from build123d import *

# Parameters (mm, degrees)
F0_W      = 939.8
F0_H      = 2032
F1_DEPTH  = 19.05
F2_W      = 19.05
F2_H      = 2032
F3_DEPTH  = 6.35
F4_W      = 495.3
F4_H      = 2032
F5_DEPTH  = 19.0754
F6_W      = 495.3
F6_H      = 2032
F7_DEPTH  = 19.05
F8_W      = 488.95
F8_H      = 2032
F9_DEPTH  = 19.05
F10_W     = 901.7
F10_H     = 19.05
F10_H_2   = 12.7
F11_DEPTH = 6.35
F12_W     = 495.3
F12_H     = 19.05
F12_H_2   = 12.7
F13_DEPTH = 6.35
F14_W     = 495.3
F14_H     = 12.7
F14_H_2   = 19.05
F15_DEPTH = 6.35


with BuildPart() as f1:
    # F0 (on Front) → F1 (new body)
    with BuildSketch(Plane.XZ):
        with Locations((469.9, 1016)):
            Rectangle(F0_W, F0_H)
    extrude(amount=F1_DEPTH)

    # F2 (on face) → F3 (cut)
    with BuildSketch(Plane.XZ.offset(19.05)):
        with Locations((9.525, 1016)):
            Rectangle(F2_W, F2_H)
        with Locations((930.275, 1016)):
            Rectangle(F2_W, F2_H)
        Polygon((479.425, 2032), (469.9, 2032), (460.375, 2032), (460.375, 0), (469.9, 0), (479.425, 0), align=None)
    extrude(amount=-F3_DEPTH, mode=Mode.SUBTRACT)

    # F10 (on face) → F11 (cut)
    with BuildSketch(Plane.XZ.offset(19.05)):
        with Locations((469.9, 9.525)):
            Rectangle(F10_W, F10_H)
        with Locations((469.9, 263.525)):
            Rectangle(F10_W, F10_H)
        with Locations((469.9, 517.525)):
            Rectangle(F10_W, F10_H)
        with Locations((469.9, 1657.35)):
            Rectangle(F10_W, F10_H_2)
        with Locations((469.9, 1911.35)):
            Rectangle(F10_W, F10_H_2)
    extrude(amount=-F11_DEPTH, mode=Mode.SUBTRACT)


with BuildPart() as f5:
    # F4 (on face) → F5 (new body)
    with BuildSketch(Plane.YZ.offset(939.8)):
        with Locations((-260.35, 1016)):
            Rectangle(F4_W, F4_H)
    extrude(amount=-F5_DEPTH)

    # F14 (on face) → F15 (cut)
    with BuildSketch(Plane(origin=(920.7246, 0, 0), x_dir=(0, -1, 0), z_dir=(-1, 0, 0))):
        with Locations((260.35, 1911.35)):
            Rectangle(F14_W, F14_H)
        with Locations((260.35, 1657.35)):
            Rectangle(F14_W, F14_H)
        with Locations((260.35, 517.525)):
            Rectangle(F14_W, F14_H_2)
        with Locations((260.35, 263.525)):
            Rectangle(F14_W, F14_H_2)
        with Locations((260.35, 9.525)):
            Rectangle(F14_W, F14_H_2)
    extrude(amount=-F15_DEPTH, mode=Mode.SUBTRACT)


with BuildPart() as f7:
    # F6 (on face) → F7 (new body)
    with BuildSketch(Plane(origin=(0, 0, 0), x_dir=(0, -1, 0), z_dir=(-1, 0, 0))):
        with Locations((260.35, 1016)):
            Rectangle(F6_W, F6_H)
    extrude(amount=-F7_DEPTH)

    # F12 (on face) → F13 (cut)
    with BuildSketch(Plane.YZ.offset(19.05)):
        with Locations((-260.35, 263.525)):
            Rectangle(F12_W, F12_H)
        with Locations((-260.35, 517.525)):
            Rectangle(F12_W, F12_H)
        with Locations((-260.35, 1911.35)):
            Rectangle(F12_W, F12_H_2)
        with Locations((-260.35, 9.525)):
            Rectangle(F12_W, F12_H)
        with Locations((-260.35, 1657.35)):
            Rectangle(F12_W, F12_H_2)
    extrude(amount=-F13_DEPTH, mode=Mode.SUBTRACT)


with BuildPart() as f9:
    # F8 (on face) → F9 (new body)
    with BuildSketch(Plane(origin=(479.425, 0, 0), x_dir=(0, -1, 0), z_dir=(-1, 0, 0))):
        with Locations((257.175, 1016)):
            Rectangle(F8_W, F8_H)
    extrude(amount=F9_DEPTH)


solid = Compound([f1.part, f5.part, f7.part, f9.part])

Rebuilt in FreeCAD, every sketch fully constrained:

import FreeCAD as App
import Part
import Sketcher
Q = App.Units.Quantity

doc = App.newDocument("Part")
body = doc.addObject("PartDesign::Body", "Body")

sketch1 = doc.addObject("Sketcher::SketchObject", "Sketch")
body.addObject(sketch1)
sketch1.AttachmentSupport = (doc.XZ_Plane, [""])
sketch1.MapMode = "FlatFace"
sketch1.addGeometry([
    Part.LineSegment(App.Vector(0, 2032, 0), App.Vector(0, 0, 0)),
    Part.LineSegment(App.Vector(0, 0, 0), App.Vector(940, 0, 0)),
    Part.LineSegment(App.Vector(940, 0, 0), App.Vector(940, 2032, 0)),
    Part.LineSegment(App.Vector(940, 2032, 0), App.Vector(0, 2032, 0)),
], False)
sketch1.addConstraint([
    Sketcher.Constraint("Coincident", 0, 2, 1, 1),
    Sketcher.Constraint("Coincident", 1, 2, 2, 1),
    Sketcher.Constraint("Coincident", 2, 2, 3, 1),
    Sketcher.Constraint("Coincident", 3, 2, 0, 1),
    Sketcher.Constraint("Vertical", 0),
    Sketcher.Constraint("Horizontal", 1),
    Sketcher.Constraint("Vertical", 2),
    Sketcher.Constraint("Horizontal", 3),
    Sketcher.Constraint("Coincident", 0, 2, -1, 1),
    Sketcher.Constraint("DistanceX", 1, 1, 1, 2, Q("37 in")),
    Sketcher.Constraint("DistanceY", 0, 2, 0, 1, Q("80 in")),
])
pad1 = doc.addObject("PartDesign::Pad", "Pad")
body.addObject(pad1)
pad1.Profile = sketch1
pad1.Length = Q("0.75 in")

sketch2 = doc.addObject("Sketcher::SketchObject", "Sketch001")
body.addObject(sketch2)
sketch2.AttachmentSupport = (doc.XZ_Plane, [""])
sketch2.MapMode = "FlatFace"
sketch2.AttachmentOffset = App.Placement(App.Vector(0, 0, 0.75 * 25.4), App.Rotation())
sketch2.addGeometry([
    Part.LineSegment(App.Vector(0, 2032, 0), App.Vector(0, 0, 0)),
    Part.LineSegment(App.Vector(0, 0, 0), App.Vector(19, 0, 0)),
    Part.LineSegment(App.Vector(19, 0, 0), App.Vector(19, 2032, 0)),
    Part.LineSegment(App.Vector(19, 2032, 0), App.Vector(0, 2032, 0)),
    Part.LineSegment(App.Vector(921, 2032, 0), App.Vector(921, 0, 0)),
    Part.LineSegment(App.Vector(921, 0, 0), App.Vector(940, 0, 0)),
    Part.LineSegment(App.Vector(940, 0, 0), App.Vector(940, 2032, 0)),
    Part.LineSegment(App.Vector(940, 2032, 0), App.Vector(921, 2032, 0)),
    Part.LineSegment(App.Vector(479, 2032, 0), App.Vector(460, 2032, 0)),
    Part.LineSegment(App.Vector(460, 2032, 0), App.Vector(460, 0, 0)),
    Part.LineSegment(App.Vector(460, 0, 0), App.Vector(479, 0, 0)),
    Part.LineSegment(App.Vector(479, 0, 0), App.Vector(479, 2032, 0)),
], False)
sketch2.addConstraint([
    Sketcher.Constraint("Coincident", 0, 2, 1, 1),
    Sketcher.Constraint("Coincident", 1, 2, 2, 1),
    Sketcher.Constraint("Coincident", 2, 2, 3, 1),
    Sketcher.Constraint("Coincident", 3, 2, 0, 1),
    Sketcher.Constraint("Coincident", 4, 2, 5, 1),
    Sketcher.Constraint("Coincident", 5, 2, 6, 1),
    Sketcher.Constraint("Coincident", 6, 2, 7, 1),
    Sketcher.Constraint("Coincident", 7, 2, 4, 1),
    Sketcher.Constraint("Coincident", 8, 2, 9, 1),
    Sketcher.Constraint("Coincident", 9, 2, 10, 1),
    Sketcher.Constraint("Coincident", 10, 2, 11, 1),
    Sketcher.Constraint("Coincident", 11, 2, 8, 1),
    Sketcher.Constraint("Vertical", 0),
    Sketcher.Constraint("Horizontal", 1),
    Sketcher.Constraint("Vertical", 2),
    Sketcher.Constraint("Horizontal", 3),
    Sketcher.Constraint("Vertical", 4),
    Sketcher.Constraint("Horizontal", 5),
    Sketcher.Constraint("Vertical", 6),
    Sketcher.Constraint("Horizontal", 7),
    Sketcher.Constraint("Horizontal", 8),
    Sketcher.Constraint("Vertical", 9),
    Sketcher.Constraint("Horizontal", 10),
    Sketcher.Constraint("Vertical", 11),
    Sketcher.Constraint("Coincident", 0, 2, -1, 1),
    Sketcher.Constraint("PointOnObject", 4, 2, -1),
    Sketcher.Constraint("PointOnObject", 9, 2, -1),
    Sketcher.Constraint("Horizontal", 3, 2, 6, 2),
    Sketcher.Constraint("Horizontal", 7, 2, 8, 2),
    Sketcher.Constraint("Equal", 3, 5),
    Sketcher.Constraint("Equal", 7, 8),
    Sketcher.Constraint("DistanceY", 0, 2, 0, 1, Q("80 in")),
    Sketcher.Constraint("DistanceX", -1, 1, 5, 2, Q("37 in")),
    Sketcher.Constraint("DistanceX", 1, 1, 1, 2, Q("0.75 in")),
    Sketcher.Constraint("DistanceX", -1, 1, 8, 2, Q("18.125 in")),
])
pocket1 = doc.addObject("PartDesign::Pocket", "Pocket")
body.addObject(pocket1)
pocket1.Profile = sketch2
pocket1.Length = Q("0.25 in")

sketch3 = doc.addObject("Sketcher::SketchObject", "Sketch002")
body.addObject(sketch3)
sketch3.AttachmentSupport = (doc.XZ_Plane, [""])
sketch3.MapMode = "FlatFace"
sketch3.AttachmentOffset = App.Placement(App.Vector(0, 0, 0.75 * 25.4), App.Rotation())
sketch3.addGeometry([
    Part.LineSegment(App.Vector(19, 19, 0), App.Vector(19, 0, 0)),
    Part.LineSegment(App.Vector(19, 0, 0), App.Vector(921, 0, 0)),
    Part.LineSegment(App.Vector(921, 0, 0), App.Vector(921, 19, 0)),
    Part.LineSegment(App.Vector(921, 19, 0), App.Vector(19, 19, 0)),
    Part.LineSegment(App.Vector(19, 273, 0), App.Vector(19, 254, 0)),
    Part.LineSegment(App.Vector(19, 254, 0), App.Vector(921, 254, 0)),
    Part.LineSegment(App.Vector(921, 254, 0), App.Vector(921, 273, 0)),
    Part.LineSegment(App.Vector(921, 273, 0), App.Vector(19, 273, 0)),
    Part.LineSegment(App.Vector(19, 527, 0), App.Vector(19, 508, 0)),
    Part.LineSegment(App.Vector(19, 508, 0), App.Vector(921, 508, 0)),
    Part.LineSegment(App.Vector(921, 508, 0), App.Vector(921, 527, 0)),
    Part.LineSegment(App.Vector(921, 527, 0), App.Vector(19, 527, 0)),
    Part.LineSegment(App.Vector(19, 1664, 0), App.Vector(19, 1651, 0)),
    Part.LineSegment(App.Vector(19, 1651, 0), App.Vector(921, 1651, 0)),
    Part.LineSegment(App.Vector(921, 1651, 0), App.Vector(921, 1664, 0)),
    Part.LineSegment(App.Vector(921, 1664, 0), App.Vector(19, 1664, 0)),
    Part.LineSegment(App.Vector(19, 1918, 0), App.Vector(19, 1905, 0)),
    Part.LineSegment(App.Vector(19, 1905, 0), App.Vector(921, 1905, 0)),
    Part.LineSegment(App.Vector(921, 1905, 0), App.Vector(921, 1918, 0)),
    Part.LineSegment(App.Vector(921, 1918, 0), App.Vector(19, 1918, 0)),
], False)
sketch3.addConstraint([
    Sketcher.Constraint("Coincident", 0, 2, 1, 1),
    Sketcher.Constraint("Coincident", 1, 2, 2, 1),
    Sketcher.Constraint("Coincident", 2, 2, 3, 1),
    Sketcher.Constraint("Coincident", 3, 2, 0, 1),
    Sketcher.Constraint("Coincident", 4, 2, 5, 1),
    Sketcher.Constraint("Coincident", 5, 2, 6, 1),
    Sketcher.Constraint("Coincident", 6, 2, 7, 1),
    Sketcher.Constraint("Coincident", 7, 2, 4, 1),
    Sketcher.Constraint("Coincident", 8, 2, 9, 1),
    Sketcher.Constraint("Coincident", 9, 2, 10, 1),
    Sketcher.Constraint("Coincident", 10, 2, 11, 1),
    Sketcher.Constraint("Coincident", 11, 2, 8, 1),
    Sketcher.Constraint("Coincident", 12, 2, 13, 1),
    Sketcher.Constraint("Coincident", 13, 2, 14, 1),
    Sketcher.Constraint("Coincident", 14, 2, 15, 1),
    Sketcher.Constraint("Coincident", 15, 2, 12, 1),
    Sketcher.Constraint("Coincident", 16, 2, 17, 1),
    Sketcher.Constraint("Coincident", 17, 2, 18, 1),
    Sketcher.Constraint("Coincident", 18, 2, 19, 1),
    Sketcher.Constraint("Coincident", 19, 2, 16, 1),
    Sketcher.Constraint("Vertical", 0),
    Sketcher.Constraint("Horizontal", 1),
    Sketcher.Constraint("Vertical", 2),
    Sketcher.Constraint("Horizontal", 3),
    Sketcher.Constraint("Vertical", 4),
    Sketcher.Constraint("Horizontal", 5),
    Sketcher.Constraint("Vertical", 6),
    Sketcher.Constraint("Horizontal", 7),
    Sketcher.Constraint("Vertical", 8),
    Sketcher.Constraint("Horizontal", 9),
    Sketcher.Constraint("Vertical", 10),
    Sketcher.Constraint("Horizontal", 11),
    Sketcher.Constraint("Vertical", 12),
    Sketcher.Constraint("Horizontal", 13),
    Sketcher.Constraint("Vertical", 14),
    Sketcher.Constraint("Horizontal", 15),
    Sketcher.Constraint("Vertical", 16),
    Sketcher.Constraint("Horizontal", 17),
    Sketcher.Constraint("Vertical", 18),
    Sketcher.Constraint("Horizontal", 19),
    Sketcher.Constraint("PointOnObject", 0, 2, -1),
    Sketcher.Constraint("Vertical", 3, 2, 4, 2),
    Sketcher.Constraint("Vertical", 2, 2, 5, 2),
    Sketcher.Constraint("Vertical", 7, 2, 8, 2),
    Sketcher.Constraint("Vertical", 6, 2, 9, 2),
    Sketcher.Constraint("Vertical", 11, 2, 12, 2),
    Sketcher.Constraint("Vertical", 10, 2, 13, 2),
    Sketcher.Constraint("Vertical", 15, 2, 16, 2),
    Sketcher.Constraint("Vertical", 14, 2, 17, 2),
    Sketcher.Constraint("Equal", 2, 4),
    Sketcher.Constraint("Equal", 6, 8),
    Sketcher.Constraint("Equal", 14, 16),
    Sketcher.Constraint("DistanceX", 1, 1, 1, 2, Q("35.5 in")),
    Sketcher.Constraint("DistanceY", 12, 2, 12, 1, Q("0.5 in")),
    Sketcher.Constraint("DistanceY", -1, 1, 4, 2, Q("10 in")),
    Sketcher.Constraint("DistanceY", -1, 1, 8, 2, Q("20 in")),
    Sketcher.Constraint("DistanceY", -1, 1, 12, 2, Q("65 in")),
    Sketcher.Constraint("DistanceY", -1, 1, 16, 2, Q("75 in")),
    Sketcher.Constraint("DistanceY", 0, 2, 0, 1, Q("0.75 in")),
    Sketcher.Constraint("DistanceX", -1, 1, 0, 2, Q("0.75 in")),
])
pocket2 = doc.addObject("PartDesign::Pocket", "Pocket001")
body.addObject(pocket2)
pocket2.Profile = sketch3
pocket2.Length = Q("0.25 in")
body2 = doc.addObject("PartDesign::Body", "Body001")

sketch4 = doc.addObject("Sketcher::SketchObject", "Sketch003")
body2.addObject(sketch4)
sketch4.AttachmentSupport = (doc.getObject("YZ_Plane001"), [""])
sketch4.MapMode = "FlatFace"
sketch4.AttachmentOffset = App.Placement(App.Vector(0, 0, 37 * 25.4), App.Rotation())
sketch4.addGeometry([
    Part.LineSegment(App.Vector(-508, 2032, 0), App.Vector(-508, 0, 0)),
    Part.LineSegment(App.Vector(-508, 0, 0), App.Vector(-13, 0, 0)),
    Part.LineSegment(App.Vector(-13, 0, 0), App.Vector(-13, 2032, 0)),
    Part.LineSegment(App.Vector(-13, 2032, 0), App.Vector(-508, 2032, 0)),
], False)
sketch4.addConstraint([
    Sketcher.Constraint("Coincident", 0, 2, 1, 1),
    Sketcher.Constraint("Coincident", 1, 2, 2, 1),
    Sketcher.Constraint("Coincident", 2, 2, 3, 1),
    Sketcher.Constraint("Coincident", 3, 2, 0, 1),
    Sketcher.Constraint("Vertical", 0),
    Sketcher.Constraint("Horizontal", 1),
    Sketcher.Constraint("Vertical", 2),
    Sketcher.Constraint("Horizontal", 3),
    Sketcher.Constraint("PointOnObject", 0, 2, -1),
    Sketcher.Constraint("DistanceY", 0, 2, 0, 1, Q("80 in")),
    Sketcher.Constraint("DistanceX", 1, 1, 1, 2, Q("19.5 in")),
    Sketcher.Constraint("DistanceX", 0, 2, -1, 1, Q("20 in")),
])
pad2 = doc.addObject("PartDesign::Pad", "Pad001")
body2.addObject(pad2)
pad2.Profile = sketch4
pad2.Length = Q("0.751 in")
pad2.Reversed = True

sketch5 = doc.addObject("Sketcher::SketchObject", "Sketch004")
body2.addObject(sketch5)
sketch5.AttachmentSupport = (doc.getObject("YZ_Plane001"), [""])
sketch5.MapMode = "FlatFace"
sketch5.AttachmentOffset = App.Placement(App.Vector(0, 0, 36.249 * 25.4), App.Rotation())
sketch5.addGeometry([
    Part.LineSegment(App.Vector(-13, 1918, 0), App.Vector(-13, 1905, 0)),
    Part.LineSegment(App.Vector(-13, 1905, 0), App.Vector(-508, 1905, 0)),
    Part.LineSegment(App.Vector(-508, 1905, 0), App.Vector(-508, 1918, 0)),
    Part.LineSegment(App.Vector(-508, 1918, 0), App.Vector(-13, 1918, 0)),
    Part.LineSegment(App.Vector(-13, 1664, 0), App.Vector(-13, 1651, 0)),
    Part.LineSegment(App.Vector(-13, 1651, 0), App.Vector(-508, 1651, 0)),
    Part.LineSegment(App.Vector(-508, 1651, 0), App.Vector(-508, 1664, 0)),
    Part.LineSegment(App.Vector(-508, 1664, 0), App.Vector(-13, 1664, 0)),
    Part.LineSegment(App.Vector(-13, 527, 0), App.Vector(-13, 508, 0)),
    Part.LineSegment(App.Vector(-13, 508, 0), App.Vector(-508, 508, 0)),
    Part.LineSegment(App.Vector(-508, 508, 0), App.Vector(-508, 527, 0)),
    Part.LineSegment(App.Vector(-508, 527, 0), App.Vector(-13, 527, 0)),
    Part.LineSegment(App.Vector(-13, 273, 0), App.Vector(-13, 254, 0)),
    Part.LineSegment(App.Vector(-13, 254, 0), App.Vector(-508, 254, 0)),
    Part.LineSegment(App.Vector(-508, 254, 0), App.Vector(-508, 273, 0)),
    Part.LineSegment(App.Vector(-508, 273, 0), App.Vector(-13, 273, 0)),
    Part.LineSegment(App.Vector(-13, 19, 0), App.Vector(-13, 0, 0)),
    Part.LineSegment(App.Vector(-13, 0, 0), App.Vector(-508, 0, 0)),
    Part.LineSegment(App.Vector(-508, 0, 0), App.Vector(-508, 19, 0)),
    Part.LineSegment(App.Vector(-508, 19, 0), App.Vector(-13, 19, 0)),
], False)
sketch5.addConstraint([
    Sketcher.Constraint("Coincident", 0, 2, 1, 1),
    Sketcher.Constraint("Coincident", 1, 2, 2, 1),
    Sketcher.Constraint("Coincident", 2, 2, 3, 1),
    Sketcher.Constraint("Coincident", 3, 2, 0, 1),
    Sketcher.Constraint("Coincident", 4, 2, 5, 1),
    Sketcher.Constraint("Coincident", 5, 2, 6, 1),
    Sketcher.Constraint("Coincident", 6, 2, 7, 1),
    Sketcher.Constraint("Coincident", 7, 2, 4, 1),
    Sketcher.Constraint("Coincident", 8, 2, 9, 1),
    Sketcher.Constraint("Coincident", 9, 2, 10, 1),
    Sketcher.Constraint("Coincident", 10, 2, 11, 1),
    Sketcher.Constraint("Coincident", 11, 2, 8, 1),
    Sketcher.Constraint("Coincident", 12, 2, 13, 1),
    Sketcher.Constraint("Coincident", 13, 2, 14, 1),
    Sketcher.Constraint("Coincident", 14, 2, 15, 1),
    Sketcher.Constraint("Coincident", 15, 2, 12, 1),
    Sketcher.Constraint("Coincident", 16, 2, 17, 1),
    Sketcher.Constraint("Coincident", 17, 2, 18, 1),
    Sketcher.Constraint("Coincident", 18, 2, 19, 1),
    Sketcher.Constraint("Coincident", 19, 2, 16, 1),
    Sketcher.Constraint("Vertical", 0),
    Sketcher.Constraint("Horizontal", 1),
    Sketcher.Constraint("Vertical", 2),
    Sketcher.Constraint("Horizontal", 3),
    Sketcher.Constraint("Vertical", 4),
    Sketcher.Constraint("Horizontal", 5),
    Sketcher.Constraint("Vertical", 6),
    Sketcher.Constraint("Horizontal", 7),
    Sketcher.Constraint("Vertical", 8),
    Sketcher.Constraint("Horizontal", 9),
    Sketcher.Constraint("Vertical", 10),
    Sketcher.Constraint("Horizontal", 11),
    Sketcher.Constraint("Vertical", 12),
    Sketcher.Constraint("Horizontal", 13),
    Sketcher.Constraint("Vertical", 14),
    Sketcher.Constraint("Horizontal", 15),
    Sketcher.Constraint("Vertical", 16),
    Sketcher.Constraint("Horizontal", 17),
    Sketcher.Constraint("Vertical", 18),
    Sketcher.Constraint("Horizontal", 19),
    Sketcher.Constraint("PointOnObject", 16, 2, -1),
    Sketcher.Constraint("Vertical", 3, 2, 4, 2),
    Sketcher.Constraint("Vertical", 2, 2, 5, 2),
    Sketcher.Constraint("Vertical", 7, 2, 8, 2),
    Sketcher.Constraint("Vertical", 6, 2, 9, 2),
    Sketcher.Constraint("Vertical", 11, 2, 12, 2),
    Sketcher.Constraint("Vertical", 10, 2, 13, 2),
    Sketcher.Constraint("Vertical", 15, 2, 16, 2),
    Sketcher.Constraint("Vertical", 14, 2, 17, 2),
    Sketcher.Constraint("Equal", 2, 4),
    Sketcher.Constraint("Equal", 10, 12),
    Sketcher.Constraint("Equal", 14, 16),
    Sketcher.Constraint("DistanceX", 1, 2, 1, 1, Q("19.5 in")),
    Sketcher.Constraint("DistanceY", 0, 2, 0, 1, Q("0.5 in")),
    Sketcher.Constraint("DistanceY", -1, 1, 0, 2, Q("75 in")),
    Sketcher.Constraint("DistanceX", 1, 2, -1, 1, Q("20 in")),
    Sketcher.Constraint("DistanceY", -1, 1, 4, 2, Q("65 in")),
    Sketcher.Constraint("DistanceY", -1, 1, 8, 2, Q("20 in")),
    Sketcher.Constraint("DistanceY", -1, 1, 12, 2, Q("10 in")),
    Sketcher.Constraint("DistanceY", 8, 2, 8, 1, Q("0.75 in")),
])
pocket3 = doc.addObject("PartDesign::Pocket", "Pocket002")
body2.addObject(pocket3)
pocket3.Profile = sketch5
pocket3.Length = Q("0.25 in")
pocket3.Reversed = True
body3 = doc.addObject("PartDesign::Body", "Body002")

sketch6 = doc.addObject("Sketcher::SketchObject", "Sketch005")
body3.addObject(sketch6)
sketch6.AttachmentSupport = (doc.getObject("YZ_Plane002"), [""])
sketch6.MapMode = "FlatFace"
sketch6.addGeometry([
    Part.LineSegment(App.Vector(-13, 2032, 0), App.Vector(-13, 0, 0)),
    Part.LineSegment(App.Vector(-13, 0, 0), App.Vector(-508, 0, 0)),
    Part.LineSegment(App.Vector(-508, 0, 0), App.Vector(-508, 2032, 0)),
    Part.LineSegment(App.Vector(-508, 2032, 0), App.Vector(-13, 2032, 0)),
], False)
sketch6.addConstraint([
    Sketcher.Constraint("Coincident", 0, 2, 1, 1),
    Sketcher.Constraint("Coincident", 1, 2, 2, 1),
    Sketcher.Constraint("Coincident", 2, 2, 3, 1),
    Sketcher.Constraint("Coincident", 3, 2, 0, 1),
    Sketcher.Constraint("Vertical", 0),
    Sketcher.Constraint("Horizontal", 1),
    Sketcher.Constraint("Vertical", 2),
    Sketcher.Constraint("Horizontal", 3),
    Sketcher.Constraint("PointOnObject", 0, 2, -1),
    Sketcher.Constraint("DistanceY", 0, 2, 0, 1, Q("80 in")),
    Sketcher.Constraint("DistanceX", 1, 2, 1, 1, Q("19.5 in")),
    Sketcher.Constraint("DistanceX", 1, 2, -1, 1, Q("20 in")),
])
pad3 = doc.addObject("PartDesign::Pad", "Pad002")
body3.addObject(pad3)
pad3.Profile = sketch6
pad3.Length = Q("0.75 in")

sketch7 = doc.addObject("Sketcher::SketchObject", "Sketch006")
body3.addObject(sketch7)
sketch7.AttachmentSupport = (doc.getObject("YZ_Plane002"), [""])
sketch7.MapMode = "FlatFace"
sketch7.AttachmentOffset = App.Placement(App.Vector(0, 0, 0.75 * 25.4), App.Rotation())
sketch7.addGeometry([
    Part.LineSegment(App.Vector(-508, 273, 0), App.Vector(-508, 254, 0)),
    Part.LineSegment(App.Vector(-508, 254, 0), App.Vector(-13, 254, 0)),
    Part.LineSegment(App.Vector(-13, 254, 0), App.Vector(-13, 273, 0)),
    Part.LineSegment(App.Vector(-13, 273, 0), App.Vector(-508, 273, 0)),
    Part.LineSegment(App.Vector(-508, 527, 0), App.Vector(-508, 508, 0)),
    Part.LineSegment(App.Vector(-508, 508, 0), App.Vector(-13, 508, 0)),
    Part.LineSegment(App.Vector(-13, 508, 0), App.Vector(-13, 527, 0)),
    Part.LineSegment(App.Vector(-13, 527, 0), App.Vector(-508, 527, 0)),
    Part.LineSegment(App.Vector(-508, 1918, 0), App.Vector(-508, 1905, 0)),
    Part.LineSegment(App.Vector(-508, 1905, 0), App.Vector(-13, 1905, 0)),
    Part.LineSegment(App.Vector(-13, 1905, 0), App.Vector(-13, 1918, 0)),
    Part.LineSegment(App.Vector(-13, 1918, 0), App.Vector(-508, 1918, 0)),
    Part.LineSegment(App.Vector(-508, 19, 0), App.Vector(-508, 0, 0)),
    Part.LineSegment(App.Vector(-508, 0, 0), App.Vector(-13, 0, 0)),
    Part.LineSegment(App.Vector(-13, 0, 0), App.Vector(-13, 19, 0)),
    Part.LineSegment(App.Vector(-13, 19, 0), App.Vector(-508, 19, 0)),
    Part.LineSegment(App.Vector(-508, 1664, 0), App.Vector(-508, 1651, 0)),
    Part.LineSegment(App.Vector(-508, 1651, 0), App.Vector(-13, 1651, 0)),
    Part.LineSegment(App.Vector(-13, 1651, 0), App.Vector(-13, 1664, 0)),
    Part.LineSegment(App.Vector(-13, 1664, 0), App.Vector(-508, 1664, 0)),
], False)
sketch7.addConstraint([
    Sketcher.Constraint("Coincident", 0, 2, 1, 1),
    Sketcher.Constraint("Coincident", 1, 2, 2, 1),
    Sketcher.Constraint("Coincident", 2, 2, 3, 1),
    Sketcher.Constraint("Coincident", 3, 2, 0, 1),
    Sketcher.Constraint("Coincident", 4, 2, 5, 1),
    Sketcher.Constraint("Coincident", 5, 2, 6, 1),
    Sketcher.Constraint("Coincident", 6, 2, 7, 1),
    Sketcher.Constraint("Coincident", 7, 2, 4, 1),
    Sketcher.Constraint("Coincident", 8, 2, 9, 1),
    Sketcher.Constraint("Coincident", 9, 2, 10, 1),
    Sketcher.Constraint("Coincident", 10, 2, 11, 1),
    Sketcher.Constraint("Coincident", 11, 2, 8, 1),
    Sketcher.Constraint("Coincident", 12, 2, 13, 1),
    Sketcher.Constraint("Coincident", 13, 2, 14, 1),
    Sketcher.Constraint("Coincident", 14, 2, 15, 1),
    Sketcher.Constraint("Coincident", 15, 2, 12, 1),
    Sketcher.Constraint("Coincident", 16, 2, 17, 1),
    Sketcher.Constraint("Coincident", 17, 2, 18, 1),
    Sketcher.Constraint("Coincident", 18, 2, 19, 1),
    Sketcher.Constraint("Coincident", 19, 2, 16, 1),
    Sketcher.Constraint("Vertical", 0),
    Sketcher.Constraint("Horizontal", 1),
    Sketcher.Constraint("Vertical", 2),
    Sketcher.Constraint("Horizontal", 3),
    Sketcher.Constraint("Vertical", 4),
    Sketcher.Constraint("Horizontal", 5),
    Sketcher.Constraint("Vertical", 6),
    Sketcher.Constraint("Horizontal", 7),
    Sketcher.Constraint("Vertical", 8),
    Sketcher.Constraint("Horizontal", 9),
    Sketcher.Constraint("Vertical", 10),
    Sketcher.Constraint("Horizontal", 11),
    Sketcher.Constraint("Vertical", 12),
    Sketcher.Constraint("Horizontal", 13),
    Sketcher.Constraint("Vertical", 14),
    Sketcher.Constraint("Horizontal", 15),
    Sketcher.Constraint("Vertical", 16),
    Sketcher.Constraint("Horizontal", 17),
    Sketcher.Constraint("Vertical", 18),
    Sketcher.Constraint("Horizontal", 19),
    Sketcher.Constraint("PointOnObject", 12, 2, -1),
    Sketcher.Constraint("Vertical", 3, 2, 4, 2),
    Sketcher.Constraint("Vertical", 2, 2, 5, 2),
    Sketcher.Constraint("Vertical", 7, 2, 8, 2),
    Sketcher.Constraint("Vertical", 6, 2, 9, 2),
    Sketcher.Constraint("Vertical", 11, 2, 12, 2),
    Sketcher.Constraint("Vertical", 10, 2, 13, 2),
    Sketcher.Constraint("Vertical", 15, 2, 16, 2),
    Sketcher.Constraint("Vertical", 14, 2, 17, 2),
    Sketcher.Constraint("Equal", 2, 4),
    Sketcher.Constraint("Equal", 6, 12),
    Sketcher.Constraint("Equal", 10, 16),
    Sketcher.Constraint("DistanceX", 1, 1, 1, 2, Q("19.5 in")),
    Sketcher.Constraint("DistanceY", 8, 2, 8, 1, Q("0.5 in")),
    Sketcher.Constraint("DistanceX", 0, 2, -1, 1, Q("20 in")),
    Sketcher.Constraint("DistanceY", -1, 1, 0, 2, Q("10 in")),
    Sketcher.Constraint("DistanceY", -1, 1, 4, 2, Q("20 in")),
    Sketcher.Constraint("DistanceY", -1, 1, 8, 2, Q("75 in")),
    Sketcher.Constraint("DistanceY", -1, 1, 16, 2, Q("65 in")),
    Sketcher.Constraint("DistanceY", 0, 2, 0, 1, Q("0.75 in")),
])
pocket4 = doc.addObject("PartDesign::Pocket", "Pocket003")
body3.addObject(pocket4)
pocket4.Profile = sketch7
pocket4.Length = Q("0.25 in")
body4 = doc.addObject("PartDesign::Body", "Body003")

sketch8 = doc.addObject("Sketcher::SketchObject", "Sketch007")
body4.addObject(sketch8)
sketch8.AttachmentSupport = (doc.getObject("YZ_Plane003"), [""])
sketch8.MapMode = "FlatFace"
sketch8.AttachmentOffset = App.Placement(App.Vector(0, 0, 18.875 * 25.4), App.Rotation())
sketch8.addGeometry([
    Part.LineSegment(App.Vector(-13, 2032, 0), App.Vector(-13, 0, 0)),
    Part.LineSegment(App.Vector(-13, 0, 0), App.Vector(-502, 0, 0)),
    Part.LineSegment(App.Vector(-502, 0, 0), App.Vector(-502, 2032, 0)),
    Part.LineSegment(App.Vector(-502, 2032, 0), App.Vector(-13, 2032, 0)),
], False)
sketch8.addConstraint([
    Sketcher.Constraint("Coincident", 0, 2, 1, 1),
    Sketcher.Constraint("Coincident", 1, 2, 2, 1),
    Sketcher.Constraint("Coincident", 2, 2, 3, 1),
    Sketcher.Constraint("Coincident", 3, 2, 0, 1),
    Sketcher.Constraint("Vertical", 0),
    Sketcher.Constraint("Horizontal", 1),
    Sketcher.Constraint("Vertical", 2),
    Sketcher.Constraint("Horizontal", 3),
    Sketcher.Constraint("PointOnObject", 0, 2, -1),
    Sketcher.Constraint("DistanceY", 0, 2, 0, 1, Q("80 in")),
    Sketcher.Constraint("DistanceX", 1, 2, 1, 1, Q("19.25 in")),
    Sketcher.Constraint("DistanceX", 0, 2, -1, 1, Q("0.5 in")),
])
pad4 = doc.addObject("PartDesign::Pad", "Pad003")
body4.addObject(pad4)
pad4.Profile = sketch8
pad4.Length = Q("0.75 in")
pad4.Reversed = True

doc.recompute()
